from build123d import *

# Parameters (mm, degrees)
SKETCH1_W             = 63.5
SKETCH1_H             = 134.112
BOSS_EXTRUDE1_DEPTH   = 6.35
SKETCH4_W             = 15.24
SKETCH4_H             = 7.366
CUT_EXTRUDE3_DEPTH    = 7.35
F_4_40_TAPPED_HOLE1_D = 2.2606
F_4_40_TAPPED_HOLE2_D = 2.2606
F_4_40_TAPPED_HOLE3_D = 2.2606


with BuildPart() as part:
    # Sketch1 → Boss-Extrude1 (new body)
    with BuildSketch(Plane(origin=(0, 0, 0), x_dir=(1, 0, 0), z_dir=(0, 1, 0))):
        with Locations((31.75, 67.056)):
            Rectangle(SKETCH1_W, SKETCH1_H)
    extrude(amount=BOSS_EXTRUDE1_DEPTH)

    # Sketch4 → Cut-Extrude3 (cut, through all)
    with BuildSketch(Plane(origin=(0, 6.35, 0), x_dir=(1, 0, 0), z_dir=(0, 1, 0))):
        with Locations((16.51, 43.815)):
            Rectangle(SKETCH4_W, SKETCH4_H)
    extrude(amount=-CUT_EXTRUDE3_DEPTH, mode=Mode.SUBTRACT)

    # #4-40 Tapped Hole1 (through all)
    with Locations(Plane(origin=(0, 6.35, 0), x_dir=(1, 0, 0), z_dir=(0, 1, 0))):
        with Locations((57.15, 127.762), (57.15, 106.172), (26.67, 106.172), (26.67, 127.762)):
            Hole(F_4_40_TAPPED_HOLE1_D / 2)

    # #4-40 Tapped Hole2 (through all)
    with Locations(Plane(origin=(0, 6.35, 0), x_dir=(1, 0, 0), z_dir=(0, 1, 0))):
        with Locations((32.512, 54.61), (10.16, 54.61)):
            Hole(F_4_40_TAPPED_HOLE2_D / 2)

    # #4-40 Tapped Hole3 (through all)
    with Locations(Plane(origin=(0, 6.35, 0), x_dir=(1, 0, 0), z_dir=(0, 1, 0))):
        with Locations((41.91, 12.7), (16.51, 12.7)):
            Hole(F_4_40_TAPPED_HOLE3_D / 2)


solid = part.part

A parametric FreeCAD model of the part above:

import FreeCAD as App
import Part
import Sketcher
Q = App.Units.Quantity


def add_polygon(sketch, points):
    """Adds a closed chain of lines whose ends are joined by coincident constraints."""
    first, n = sketch.GeometryCount, len(points)
    for a, b in zip(points, points[1:] + points[:1]):
        sketch.addGeometry(Part.LineSegment(App.Vector(*a, 0), App.Vector(*b, 0)), False)
    for i in range(n):
        sketch.addConstraint(Sketcher.Constraint("Coincident", first + i, 2, first + (i + 1) % n, 1))

doc = App.newDocument("Part")
body = doc.addObject("PartDesign::Body", "Body")

sketch1 = body.newObject("Sketcher::SketchObject", "Sketch")
sketch1.AttachmentSupport = (doc.getObject("XZ_Plane"), [""])
sketch1.MapMode = "FlatFace"
add_polygon(sketch1, [(0, -134), (0, 0), (64, 0), (64, -134)])
sketch1.addConstraint(Sketcher.Constraint("Vertical", 0))
sketch1.addConstraint(Sketcher.Constraint("Horizontal", 1))
sketch1.addConstraint(Sketcher.Constraint("Vertical", 2))
sketch1.addConstraint(Sketcher.Constraint("Horizontal", 3))
sketch1.addConstraint(Sketcher.Constraint("Coincident", 0, 2, -1, 1))
sketch1.addConstraint(Sketcher.Constraint("DistanceX", 1, 1, 1, 2, Q("2.5 in")))
sketch1.addConstraint(Sketcher.Constraint("DistanceY", 0, 1, 0, 2, Q("5.28 in")))
pad1 = body.newObject("PartDesign::Pad", "Pad")
pad1.Profile = sketch1
pad1.Length = Q("0.25 in")
pad1.Reversed = True

sketch2 = body.newObject("Sketcher::SketchObject", "Sketch001")
sketch2.AttachmentSupport = (doc.getObject("XZ_Plane"), [""])
sketch2.MapMode = "FlatFace"
sketch2.AttachmentOffset = App.Placement(App.Vector(0, 0, -0.25 * 25.4), App.Rotation())
add_polygon(sketch2, [(9, -47), (9, -40), (24, -40), (24, -47)])
sketch2.addConstraint(Sketcher.Constraint("Vertical", 0))
sketch2.addConstraint(Sketcher.Constraint("Horizontal", 1))
sketch2.addConstraint(Sketcher.Constraint("Vertical", 2))
sketch2.addConstraint(Sketcher.Constraint("Horizontal", 3))
sketch2.addConstraint(Sketcher.Constraint("DistanceX", 1, 1, 1, 2, Q("0.6 in")))
sketch2.addConstraint(Sketcher.Constraint("DistanceY", 0, 1, 0, 2, Q("0.29 in")))
sketch2.addConstraint(Sketcher.Constraint("DistanceX", -1, 1, 0, 2, Q("0.35 in")))
sketch2.addConstraint(Sketcher.Constraint("DistanceY", 0, 2, -1, 1, Q("1.58 in")))
pocket1 = body.newObject("PartDesign::Pocket", "Pocket")
pocket1.Profile = sketch2
pocket1.Type = "ThroughAll"
pocket1.Reversed = True

sketch3 = body.newObject("Sketcher::SketchObject", "Sketch002")
sketch3.AttachmentSupport = (doc.getObject("XZ_Plane"), [""])
sketch3.MapMode = "FlatFace"
sketch3.AttachmentOffset = App.Placement(App.Vector(0, 0, -0.25 * 25.4), App.Rotation())
sketch3.addGeometry(Part.Circle(App.Vector(57.1, -127.8, 0), App.Vector(0, 0, 1), 1.1), False)
sketch3.addGeometry(Part.Circle(App.Vector(57.1, -106.2, 0), App.Vector(0, 0, 1), 1.1), False)
sketch3.addGeometry(Part.Circle(App.Vector(26.7, -106.2, 0), App.Vector(0, 0, 1), 1.1), False)
sketch3.addGeometry(Part.Circle(App.Vector(26.7, -127.8, 0), App.Vector(0, 0, 1), 1.1), False)
sketch3.addConstraint(Sketcher.Constraint("Equal", 0, 1))
sketch3.addConstraint(Sketcher.Constraint("Equal", 1, 2))
sketch3.addConstraint(Sketcher.Constraint("Equal", 2, 3))
sketch3.addConstraint(Sketcher.Constraint("Horizontal", 1, 3, 2, 3))
sketch3.addConstraint(Sketcher.Constraint("Horizontal", 0, 3, 3, 3))
sketch3.addConstraint(Sketcher.Constraint("Vertical", 0, 3, 1, 3))
sketch3.addConstraint(Sketcher.Constraint("Vertical", 2, 3, 3, 3))
sketch3.addConstraint(Sketcher.Constraint("Diameter", 0, Q("0.089 in")))
sketch3.addConstraint(Sketcher.Constraint("DistanceX", 2, 3, 1, 3, Q("1.2 in")))
sketch3.addConstraint(Sketcher.Constraint("DistanceX", -1, 1, 0, 3, Q("2.25 in")))
sketch3.addConstraint(Sketcher.Constraint("DistanceY", 0, 3, -1, 1, Q("5.03 in")))
sketch3.addConstraint(Sketcher.Constraint("DistanceY", 1, 3, -1, 1, Q("4.18 in")))
doc.recompute()
hole = body.newObject("PartDesign::Hole", "Hole")
hole.Profile = sketch3
hole.ThreadType = "None"
hole.Diameter = Q("0.089 in")
hole.DepthType = "ThroughAll"
hole.Reversed = True

sketch4 = body.newObject("Sketcher::SketchObject", "Sketch003")
sketch4.AttachmentSupport = (doc.getObject("XZ_Plane"), [""])
sketch4.MapMode = "FlatFace"
sketch4.AttachmentOffset = App.Placement(App.Vector(0, 0, -0.25 * 25.4), App.Rotation())
sketch4.addGeometry(Part.Circle(App.Vector(32.5, -54.6, 0), App.Vector(0, 0, 1), 1.1), False)
sketch4.addGeometry(Part.Circle(App.Vector(10.2, -54.6, 0), App.Vector(0, 0, 1), 1.1), False)
sketch4.addConstraint(Sketcher.Constraint("Equal", 0, 1))
sketch4.addConstraint(Sketcher.Constraint("Horizontal", 0, 3, 1, 3))
sketch4.addConstraint(Sketcher.Constraint("Diameter", 0, Q("0.089 in")))
sketch4.addConstraint(Sketcher.Constraint("DistanceX", -1, 1, 1, 3, Q("0.4 in")))
sketch4.addConstraint(Sketcher.Constraint("DistanceX", -1, 1, 0, 3, Q("1.28 in")))
sketch4.addConstraint(Sketcher.Constraint("DistanceY", 0, 3, -1, 1, Q("2.15 in")))
doc.recompute()
hole2 = body.newObject("PartDesign::Hole", "Hole001")
hole2.Profile = sketch4
hole2.ThreadType = "None"
hole2.Diameter = Q("0.089 in")
hole2.DepthType = "ThroughAll"
hole2.Reversed = True

sketch5 = body.newObject("Sketcher::SketchObject", "Sketch004")
sketch5.AttachmentSupport = (doc.getObject("XZ_Plane"), [""])
sketch5.MapMode = "FlatFace"
sketch5.AttachmentOffset = App.Placement(App.Vector(0, 0, -0.25 * 25.4), App.Rotation())
sketch5.addGeometry(Part.Circle(App.Vector(41.9, -12.7, 0), App.Vector(0, 0, 1), 1.1), False)
sketch5.addGeometry(Part.Circle(App.Vector(16.5, -12.7, 0), App.Vector(0, 0, 1), 1.1), False)
sketch5.addConstraint(Sketcher.Constraint("Equal", 0, 1))
sketch5.addConstraint(Sketcher.Constraint("Horizontal", 0, 3, 1, 3))
sketch5.addConstraint(Sketcher.Constraint("Diameter", 0, Q("0.089 in")))
sketch5.addConstraint(Sketcher.Constraint("DistanceX", 1, 3, 0, 3, Q("1 in")))
sketch5.addConstraint(Sketcher.Constraint("DistanceY", 0, 3, -1, 1, Q("0.5 in")))
sketch5.addConstraint(Sketcher.Constraint("DistanceX", -1, 1, 0, 3, Q("1.65 in")))
doc.recompute()
hole3 = body.newObject("PartDesign::Hole", "Hole002")
hole3.Profile = sketch5
hole3.ThreadType = "None"
hole3.Diameter = Q("0.089 in")
hole3.DepthType = "ThroughAll"
hole3.Reversed = True

doc.recompute()
